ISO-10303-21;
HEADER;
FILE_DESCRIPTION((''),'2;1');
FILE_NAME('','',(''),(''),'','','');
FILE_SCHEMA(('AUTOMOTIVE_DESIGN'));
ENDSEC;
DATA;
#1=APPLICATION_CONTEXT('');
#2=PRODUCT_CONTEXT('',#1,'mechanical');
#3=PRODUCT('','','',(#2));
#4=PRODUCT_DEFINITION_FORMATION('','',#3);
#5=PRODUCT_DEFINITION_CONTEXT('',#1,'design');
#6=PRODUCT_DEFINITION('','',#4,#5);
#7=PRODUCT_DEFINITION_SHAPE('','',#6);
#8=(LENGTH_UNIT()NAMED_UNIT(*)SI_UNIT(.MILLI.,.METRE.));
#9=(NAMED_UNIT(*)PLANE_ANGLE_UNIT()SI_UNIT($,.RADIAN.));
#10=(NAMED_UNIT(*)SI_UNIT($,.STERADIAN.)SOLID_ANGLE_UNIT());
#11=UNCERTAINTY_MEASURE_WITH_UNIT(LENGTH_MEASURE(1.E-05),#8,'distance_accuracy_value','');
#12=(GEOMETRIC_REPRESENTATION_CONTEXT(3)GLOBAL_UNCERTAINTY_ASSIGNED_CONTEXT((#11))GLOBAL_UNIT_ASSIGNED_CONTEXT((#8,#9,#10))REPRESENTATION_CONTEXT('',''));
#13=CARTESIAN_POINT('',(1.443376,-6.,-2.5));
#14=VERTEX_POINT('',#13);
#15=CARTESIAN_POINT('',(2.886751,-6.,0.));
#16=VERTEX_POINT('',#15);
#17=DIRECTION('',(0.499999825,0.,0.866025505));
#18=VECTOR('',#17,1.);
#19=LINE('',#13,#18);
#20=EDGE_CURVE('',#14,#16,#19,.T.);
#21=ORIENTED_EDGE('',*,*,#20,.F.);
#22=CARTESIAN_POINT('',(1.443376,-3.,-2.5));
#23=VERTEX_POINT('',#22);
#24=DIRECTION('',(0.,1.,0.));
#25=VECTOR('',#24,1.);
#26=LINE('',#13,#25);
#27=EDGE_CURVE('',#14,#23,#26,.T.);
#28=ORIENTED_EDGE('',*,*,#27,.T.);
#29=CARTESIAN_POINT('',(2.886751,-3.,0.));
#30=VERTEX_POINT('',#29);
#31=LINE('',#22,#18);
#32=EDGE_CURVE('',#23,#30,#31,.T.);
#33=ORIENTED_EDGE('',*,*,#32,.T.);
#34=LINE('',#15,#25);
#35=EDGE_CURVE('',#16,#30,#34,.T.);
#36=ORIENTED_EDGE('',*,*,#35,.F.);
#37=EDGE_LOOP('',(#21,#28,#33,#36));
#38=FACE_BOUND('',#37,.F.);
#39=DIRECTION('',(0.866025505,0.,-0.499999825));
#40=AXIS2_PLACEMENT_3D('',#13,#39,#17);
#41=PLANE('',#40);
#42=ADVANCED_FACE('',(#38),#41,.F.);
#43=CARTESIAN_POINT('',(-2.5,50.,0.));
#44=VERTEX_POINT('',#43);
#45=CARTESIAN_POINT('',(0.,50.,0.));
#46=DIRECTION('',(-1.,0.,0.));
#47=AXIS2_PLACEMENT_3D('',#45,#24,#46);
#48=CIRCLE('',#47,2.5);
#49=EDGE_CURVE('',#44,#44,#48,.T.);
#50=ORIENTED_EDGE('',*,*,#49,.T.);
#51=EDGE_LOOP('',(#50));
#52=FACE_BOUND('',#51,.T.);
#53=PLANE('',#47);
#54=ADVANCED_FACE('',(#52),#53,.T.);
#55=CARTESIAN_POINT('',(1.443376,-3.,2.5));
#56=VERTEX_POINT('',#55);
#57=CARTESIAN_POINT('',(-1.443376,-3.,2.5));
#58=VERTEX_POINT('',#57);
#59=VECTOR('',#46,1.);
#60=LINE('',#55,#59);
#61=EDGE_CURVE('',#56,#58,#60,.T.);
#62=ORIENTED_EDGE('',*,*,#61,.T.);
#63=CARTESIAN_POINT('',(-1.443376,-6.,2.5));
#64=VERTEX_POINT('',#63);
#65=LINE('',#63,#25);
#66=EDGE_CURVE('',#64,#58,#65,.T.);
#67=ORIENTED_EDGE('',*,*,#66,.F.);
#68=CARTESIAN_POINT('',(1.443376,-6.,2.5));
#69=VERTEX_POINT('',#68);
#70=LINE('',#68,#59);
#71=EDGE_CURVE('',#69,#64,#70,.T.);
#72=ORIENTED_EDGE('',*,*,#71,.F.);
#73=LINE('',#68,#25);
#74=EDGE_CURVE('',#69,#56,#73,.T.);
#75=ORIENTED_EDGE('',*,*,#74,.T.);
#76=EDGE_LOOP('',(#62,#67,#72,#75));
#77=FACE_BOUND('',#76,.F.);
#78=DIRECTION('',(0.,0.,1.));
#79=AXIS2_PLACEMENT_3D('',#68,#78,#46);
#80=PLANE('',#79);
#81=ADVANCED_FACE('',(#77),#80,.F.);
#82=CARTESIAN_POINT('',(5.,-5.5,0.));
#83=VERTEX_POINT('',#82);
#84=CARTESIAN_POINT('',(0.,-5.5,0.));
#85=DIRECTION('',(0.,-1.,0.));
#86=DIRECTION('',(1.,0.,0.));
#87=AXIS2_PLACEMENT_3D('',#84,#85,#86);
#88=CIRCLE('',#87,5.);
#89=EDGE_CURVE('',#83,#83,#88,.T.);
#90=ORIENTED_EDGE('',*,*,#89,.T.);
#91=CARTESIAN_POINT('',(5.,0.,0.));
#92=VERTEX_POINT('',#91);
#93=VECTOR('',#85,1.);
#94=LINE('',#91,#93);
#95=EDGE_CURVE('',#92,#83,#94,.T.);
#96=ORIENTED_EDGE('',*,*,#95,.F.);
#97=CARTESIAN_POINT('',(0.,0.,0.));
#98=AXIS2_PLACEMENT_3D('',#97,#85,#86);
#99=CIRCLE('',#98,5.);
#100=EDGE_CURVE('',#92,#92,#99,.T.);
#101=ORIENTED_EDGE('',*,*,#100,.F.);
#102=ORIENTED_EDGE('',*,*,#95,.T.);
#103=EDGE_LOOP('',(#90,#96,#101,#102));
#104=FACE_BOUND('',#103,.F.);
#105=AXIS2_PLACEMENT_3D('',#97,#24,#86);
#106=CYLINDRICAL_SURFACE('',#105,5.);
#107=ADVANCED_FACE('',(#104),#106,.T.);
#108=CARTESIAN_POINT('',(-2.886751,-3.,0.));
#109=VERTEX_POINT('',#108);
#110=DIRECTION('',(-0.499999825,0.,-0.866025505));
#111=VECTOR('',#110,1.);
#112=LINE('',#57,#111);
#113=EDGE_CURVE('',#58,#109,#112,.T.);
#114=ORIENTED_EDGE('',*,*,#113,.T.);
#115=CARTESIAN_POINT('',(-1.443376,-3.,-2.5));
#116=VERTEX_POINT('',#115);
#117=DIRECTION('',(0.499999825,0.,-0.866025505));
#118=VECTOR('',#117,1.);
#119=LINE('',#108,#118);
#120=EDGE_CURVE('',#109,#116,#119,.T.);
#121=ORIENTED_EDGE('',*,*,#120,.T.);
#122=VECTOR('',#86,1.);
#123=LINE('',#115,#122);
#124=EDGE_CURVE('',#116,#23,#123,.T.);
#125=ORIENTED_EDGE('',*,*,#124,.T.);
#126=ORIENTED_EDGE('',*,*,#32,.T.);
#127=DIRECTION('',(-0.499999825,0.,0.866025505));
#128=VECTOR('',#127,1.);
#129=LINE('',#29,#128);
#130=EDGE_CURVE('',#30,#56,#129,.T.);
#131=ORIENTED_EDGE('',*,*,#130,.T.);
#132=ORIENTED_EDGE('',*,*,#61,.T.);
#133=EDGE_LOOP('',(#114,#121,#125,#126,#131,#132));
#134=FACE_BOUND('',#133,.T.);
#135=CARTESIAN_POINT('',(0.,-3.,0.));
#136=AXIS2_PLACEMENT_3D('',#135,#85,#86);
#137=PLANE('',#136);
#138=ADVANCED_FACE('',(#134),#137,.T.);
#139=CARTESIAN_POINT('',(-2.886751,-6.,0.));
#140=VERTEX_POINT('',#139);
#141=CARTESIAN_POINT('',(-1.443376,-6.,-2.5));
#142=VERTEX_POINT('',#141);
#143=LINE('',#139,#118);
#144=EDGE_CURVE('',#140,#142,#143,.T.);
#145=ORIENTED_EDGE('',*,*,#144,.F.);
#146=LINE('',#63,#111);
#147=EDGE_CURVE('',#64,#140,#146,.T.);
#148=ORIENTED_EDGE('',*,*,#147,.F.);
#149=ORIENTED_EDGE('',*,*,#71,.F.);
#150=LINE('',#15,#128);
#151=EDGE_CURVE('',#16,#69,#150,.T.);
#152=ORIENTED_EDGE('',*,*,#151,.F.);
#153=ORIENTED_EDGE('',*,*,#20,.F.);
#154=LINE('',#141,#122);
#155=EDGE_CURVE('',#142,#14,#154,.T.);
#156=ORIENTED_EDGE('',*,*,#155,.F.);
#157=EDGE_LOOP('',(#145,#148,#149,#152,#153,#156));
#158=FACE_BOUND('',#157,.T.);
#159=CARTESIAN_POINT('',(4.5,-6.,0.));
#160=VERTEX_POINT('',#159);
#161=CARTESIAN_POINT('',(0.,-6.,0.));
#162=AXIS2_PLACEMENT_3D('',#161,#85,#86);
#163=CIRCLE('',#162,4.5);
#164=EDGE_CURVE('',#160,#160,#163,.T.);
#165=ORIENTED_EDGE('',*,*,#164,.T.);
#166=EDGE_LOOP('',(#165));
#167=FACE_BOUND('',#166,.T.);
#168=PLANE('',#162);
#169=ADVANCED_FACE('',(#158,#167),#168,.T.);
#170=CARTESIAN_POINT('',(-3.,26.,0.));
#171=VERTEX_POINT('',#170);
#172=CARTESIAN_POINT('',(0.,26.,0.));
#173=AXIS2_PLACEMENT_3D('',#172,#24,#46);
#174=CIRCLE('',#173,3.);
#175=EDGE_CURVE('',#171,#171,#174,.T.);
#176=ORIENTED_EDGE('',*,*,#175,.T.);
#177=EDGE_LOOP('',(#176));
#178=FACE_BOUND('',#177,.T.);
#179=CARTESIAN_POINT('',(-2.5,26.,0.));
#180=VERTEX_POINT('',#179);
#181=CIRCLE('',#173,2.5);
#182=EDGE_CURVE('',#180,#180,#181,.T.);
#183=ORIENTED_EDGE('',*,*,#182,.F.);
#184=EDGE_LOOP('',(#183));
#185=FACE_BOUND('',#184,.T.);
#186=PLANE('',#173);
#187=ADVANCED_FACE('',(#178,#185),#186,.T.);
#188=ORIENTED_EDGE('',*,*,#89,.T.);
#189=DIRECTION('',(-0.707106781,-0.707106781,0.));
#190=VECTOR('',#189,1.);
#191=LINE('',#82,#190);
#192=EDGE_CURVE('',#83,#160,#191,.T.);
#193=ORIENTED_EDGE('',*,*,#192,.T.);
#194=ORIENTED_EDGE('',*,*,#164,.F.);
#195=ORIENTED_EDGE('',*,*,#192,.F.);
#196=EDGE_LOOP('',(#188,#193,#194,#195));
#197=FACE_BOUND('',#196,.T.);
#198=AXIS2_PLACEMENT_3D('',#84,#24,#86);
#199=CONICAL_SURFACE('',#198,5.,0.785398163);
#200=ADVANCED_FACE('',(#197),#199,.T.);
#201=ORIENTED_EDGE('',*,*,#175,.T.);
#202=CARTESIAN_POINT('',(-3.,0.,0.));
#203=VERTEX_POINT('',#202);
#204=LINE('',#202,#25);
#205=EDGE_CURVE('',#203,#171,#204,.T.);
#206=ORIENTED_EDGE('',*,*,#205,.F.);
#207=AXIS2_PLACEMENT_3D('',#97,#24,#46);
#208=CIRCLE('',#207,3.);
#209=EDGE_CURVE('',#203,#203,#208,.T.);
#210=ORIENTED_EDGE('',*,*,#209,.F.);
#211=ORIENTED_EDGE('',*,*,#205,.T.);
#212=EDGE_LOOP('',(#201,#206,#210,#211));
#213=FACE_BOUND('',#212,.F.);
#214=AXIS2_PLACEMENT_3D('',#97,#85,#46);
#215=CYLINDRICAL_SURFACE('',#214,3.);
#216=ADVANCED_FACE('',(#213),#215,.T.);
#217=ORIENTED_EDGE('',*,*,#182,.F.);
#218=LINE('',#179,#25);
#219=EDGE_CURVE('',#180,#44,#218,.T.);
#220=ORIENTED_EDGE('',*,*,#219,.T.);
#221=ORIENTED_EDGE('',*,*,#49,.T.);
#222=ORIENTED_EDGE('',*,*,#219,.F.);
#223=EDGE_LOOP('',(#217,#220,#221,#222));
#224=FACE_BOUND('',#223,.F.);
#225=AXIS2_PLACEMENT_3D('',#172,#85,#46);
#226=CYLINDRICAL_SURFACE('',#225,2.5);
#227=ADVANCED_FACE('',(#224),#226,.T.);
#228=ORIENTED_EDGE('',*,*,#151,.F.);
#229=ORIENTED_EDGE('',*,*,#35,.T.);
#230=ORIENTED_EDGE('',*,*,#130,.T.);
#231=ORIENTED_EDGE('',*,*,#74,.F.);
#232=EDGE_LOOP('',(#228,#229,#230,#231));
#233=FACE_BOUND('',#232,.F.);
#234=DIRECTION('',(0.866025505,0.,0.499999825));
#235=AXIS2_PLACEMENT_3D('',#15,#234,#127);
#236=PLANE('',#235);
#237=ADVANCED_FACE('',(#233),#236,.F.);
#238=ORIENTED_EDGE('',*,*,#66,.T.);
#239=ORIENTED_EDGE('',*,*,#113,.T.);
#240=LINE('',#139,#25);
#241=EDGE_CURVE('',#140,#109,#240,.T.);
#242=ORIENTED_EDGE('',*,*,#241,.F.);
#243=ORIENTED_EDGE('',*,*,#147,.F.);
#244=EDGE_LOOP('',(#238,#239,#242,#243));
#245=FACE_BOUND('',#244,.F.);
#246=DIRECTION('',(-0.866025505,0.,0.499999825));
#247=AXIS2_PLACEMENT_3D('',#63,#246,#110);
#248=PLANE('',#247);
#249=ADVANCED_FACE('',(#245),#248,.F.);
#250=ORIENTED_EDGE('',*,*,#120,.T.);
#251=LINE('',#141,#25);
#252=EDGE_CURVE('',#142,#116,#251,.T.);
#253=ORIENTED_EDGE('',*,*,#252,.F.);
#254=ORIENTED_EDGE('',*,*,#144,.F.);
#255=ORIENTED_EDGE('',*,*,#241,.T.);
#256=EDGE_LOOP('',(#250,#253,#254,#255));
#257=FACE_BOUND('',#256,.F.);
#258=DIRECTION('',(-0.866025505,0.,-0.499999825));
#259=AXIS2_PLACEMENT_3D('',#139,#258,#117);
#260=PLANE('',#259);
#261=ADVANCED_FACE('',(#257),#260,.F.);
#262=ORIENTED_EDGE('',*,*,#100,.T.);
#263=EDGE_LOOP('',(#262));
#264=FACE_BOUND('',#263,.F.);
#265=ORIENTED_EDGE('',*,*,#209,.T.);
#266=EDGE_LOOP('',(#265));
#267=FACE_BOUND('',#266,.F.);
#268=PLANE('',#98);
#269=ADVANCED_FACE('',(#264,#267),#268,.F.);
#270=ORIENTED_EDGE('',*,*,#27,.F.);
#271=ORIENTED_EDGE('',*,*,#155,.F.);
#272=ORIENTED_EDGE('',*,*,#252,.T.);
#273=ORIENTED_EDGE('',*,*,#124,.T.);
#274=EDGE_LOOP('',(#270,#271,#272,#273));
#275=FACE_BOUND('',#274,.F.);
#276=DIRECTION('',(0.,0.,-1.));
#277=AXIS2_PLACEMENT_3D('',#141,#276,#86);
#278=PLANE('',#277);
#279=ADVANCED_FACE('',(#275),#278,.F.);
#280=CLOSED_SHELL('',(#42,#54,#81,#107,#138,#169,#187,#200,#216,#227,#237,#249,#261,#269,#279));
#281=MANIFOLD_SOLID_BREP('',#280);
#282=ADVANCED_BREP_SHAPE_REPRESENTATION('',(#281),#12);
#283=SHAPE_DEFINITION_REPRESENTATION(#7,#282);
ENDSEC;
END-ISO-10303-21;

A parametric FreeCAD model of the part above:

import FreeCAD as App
import Part
import Sketcher
Q = App.Units.Quantity


def edges_at(feature, points):
    """Names of the edges that pass closest to the given points."""
    edges = feature.Shape.Edges
    near = lambda p: min(range(len(edges)), key=lambda i: edges[i].distToShape(Part.Vertex(*p))[0])
    return sorted({f"Edge{near(p) + 1}" for p in points})


def add_polygon(sketch, points):
    """Adds a closed chain of lines whose ends are joined by coincident constraints."""
    first, n = sketch.GeometryCount, len(points)
    for a, b in zip(points, points[1:] + points[:1]):
        sketch.addGeometry(Part.LineSegment(App.Vector(*a, 0), App.Vector(*b, 0)), False)
    for i in range(n):
        sketch.addConstraint(Sketcher.Constraint("Coincident", first + i, 2, first + (i + 1) % n, 1))

doc = App.newDocument("Part")
body = doc.addObject("PartDesign::Body", "Body")

sketch1 = doc.addObject("Sketcher::SketchObject", "Sketch")
body.addObject(sketch1)
sketch1.AttachmentSupport = (doc.XZ_Plane, [""])
sketch1.MapMode = "FlatFace"
sketch1.addGeometry(Part.Circle(App.Vector(0, 0, 0), App.Vector(0, 0, 1), 5), False)
sketch1.addConstraint([
    Sketcher.Constraint("Coincident", 0, 3, -1, 1),
    Sketcher.Constraint("Diameter", 0, 10.0),
])
pad1 = doc.addObject("PartDesign::Pad", "Pad")
body.addObject(pad1)
pad1.Profile = sketch1
pad1.Length = 6

sketch2 = doc.addObject("Sketcher::SketchObject", "Sketch001")
body.addObject(sketch2)
sketch2.AttachmentSupport = (doc.XZ_Plane, [""])
sketch2.MapMode = "FlatFace"
sketch2.addGeometry(Part.Circle(App.Vector(0, 0, 0), App.Vector(0, 0, 1), 3), False)
sketch2.addConstraint([
    Sketcher.Constraint("Coincident", 0, 3, -1, 1),
    Sketcher.Constraint("Diameter", 0, 6.0),
])
pad2 = doc.addObject("PartDesign::Pad", "Pad001")
body.addObject(pad2)
pad2.Profile = sketch2
pad2.Length = 26
pad2.Reversed = True

sketch3 = doc.addObject("Sketcher::SketchObject", "Sketch002")
body.addObject(sketch3)
sketch3.AttachmentSupport = (doc.XZ_Plane, [""])
sketch3.MapMode = "FlatFace"
sketch3.AttachmentOffset = App.Placement(App.Vector(0, 0, -26), App.Rotation())
sketch3.addGeometry(Part.Circle(App.Vector(0, 0, 0), App.Vector(0, 0, 1), 2.5), False)
sketch3.addConstraint([
    Sketcher.Constraint("Coincident", 0, 3, -1, 1),
    Sketcher.Constraint("Diameter", 0, 5.0),
])
pad3 = doc.addObject("PartDesign::Pad", "Pad002")
body.addObject(pad3)
pad3.Profile = sketch3
pad3.Length = 24
pad3.Reversed = True

sketch4 = doc.addObject("Sketcher::SketchObject", "Sketch003")
body.addObject(sketch4)
sketch4.AttachmentSupport = (doc.XZ_Plane, [""])
sketch4.MapMode = "FlatFace"
sketch4.AttachmentOffset = App.Placement(App.Vector(0, 0, 6), App.Rotation())
add_polygon(sketch4, [(1.443376, 2.5), (-1.443376, 2.5), (-2.886751, 0), (-1.443376, -2.5), (1.443376, -2.5), (2.886751, 0)])
sketch4.addConstraint([
    Sketcher.Constraint("Horizontal", 0),
    Sketcher.Constraint("Horizontal", 3),
    Sketcher.Constraint("Symmetric", 0, 2, 3, 2, -1, 1),
    Sketcher.Constraint("Symmetric", 1, 2, 4, 2, -1, 1),
    Sketcher.Constraint("PointOnObject", 1, 2, -1),
    Sketcher.Constraint("Parallel", 2, 5),
    Sketcher.Constraint("Vertical", 0, 2, 2, 2),
    Sketcher.Constraint("Angle", 1, Q("-119.999988 deg")),
    Sketcher.Constraint("DistanceY", 2, 2, 0, 2, 5.0),
    Sketcher.Constraint("DistanceX", 0, 2, 0, 1, 2.886752),
])
pocket1 = doc.addObject("PartDesign::Pocket", "Pocket")
body.addObject(pocket1)
pocket1.Profile = sketch4
pocket1.Length = 3
doc.recompute()

chamfer = doc.addObject("PartDesign::Chamfer", "Chamfer")
body.addObject(chamfer)
chamfer.Base = (pocket1, edges_at(pocket1, [(-5, -6, 0)]))
chamfer.Size = 0.5

doc.recompute()
